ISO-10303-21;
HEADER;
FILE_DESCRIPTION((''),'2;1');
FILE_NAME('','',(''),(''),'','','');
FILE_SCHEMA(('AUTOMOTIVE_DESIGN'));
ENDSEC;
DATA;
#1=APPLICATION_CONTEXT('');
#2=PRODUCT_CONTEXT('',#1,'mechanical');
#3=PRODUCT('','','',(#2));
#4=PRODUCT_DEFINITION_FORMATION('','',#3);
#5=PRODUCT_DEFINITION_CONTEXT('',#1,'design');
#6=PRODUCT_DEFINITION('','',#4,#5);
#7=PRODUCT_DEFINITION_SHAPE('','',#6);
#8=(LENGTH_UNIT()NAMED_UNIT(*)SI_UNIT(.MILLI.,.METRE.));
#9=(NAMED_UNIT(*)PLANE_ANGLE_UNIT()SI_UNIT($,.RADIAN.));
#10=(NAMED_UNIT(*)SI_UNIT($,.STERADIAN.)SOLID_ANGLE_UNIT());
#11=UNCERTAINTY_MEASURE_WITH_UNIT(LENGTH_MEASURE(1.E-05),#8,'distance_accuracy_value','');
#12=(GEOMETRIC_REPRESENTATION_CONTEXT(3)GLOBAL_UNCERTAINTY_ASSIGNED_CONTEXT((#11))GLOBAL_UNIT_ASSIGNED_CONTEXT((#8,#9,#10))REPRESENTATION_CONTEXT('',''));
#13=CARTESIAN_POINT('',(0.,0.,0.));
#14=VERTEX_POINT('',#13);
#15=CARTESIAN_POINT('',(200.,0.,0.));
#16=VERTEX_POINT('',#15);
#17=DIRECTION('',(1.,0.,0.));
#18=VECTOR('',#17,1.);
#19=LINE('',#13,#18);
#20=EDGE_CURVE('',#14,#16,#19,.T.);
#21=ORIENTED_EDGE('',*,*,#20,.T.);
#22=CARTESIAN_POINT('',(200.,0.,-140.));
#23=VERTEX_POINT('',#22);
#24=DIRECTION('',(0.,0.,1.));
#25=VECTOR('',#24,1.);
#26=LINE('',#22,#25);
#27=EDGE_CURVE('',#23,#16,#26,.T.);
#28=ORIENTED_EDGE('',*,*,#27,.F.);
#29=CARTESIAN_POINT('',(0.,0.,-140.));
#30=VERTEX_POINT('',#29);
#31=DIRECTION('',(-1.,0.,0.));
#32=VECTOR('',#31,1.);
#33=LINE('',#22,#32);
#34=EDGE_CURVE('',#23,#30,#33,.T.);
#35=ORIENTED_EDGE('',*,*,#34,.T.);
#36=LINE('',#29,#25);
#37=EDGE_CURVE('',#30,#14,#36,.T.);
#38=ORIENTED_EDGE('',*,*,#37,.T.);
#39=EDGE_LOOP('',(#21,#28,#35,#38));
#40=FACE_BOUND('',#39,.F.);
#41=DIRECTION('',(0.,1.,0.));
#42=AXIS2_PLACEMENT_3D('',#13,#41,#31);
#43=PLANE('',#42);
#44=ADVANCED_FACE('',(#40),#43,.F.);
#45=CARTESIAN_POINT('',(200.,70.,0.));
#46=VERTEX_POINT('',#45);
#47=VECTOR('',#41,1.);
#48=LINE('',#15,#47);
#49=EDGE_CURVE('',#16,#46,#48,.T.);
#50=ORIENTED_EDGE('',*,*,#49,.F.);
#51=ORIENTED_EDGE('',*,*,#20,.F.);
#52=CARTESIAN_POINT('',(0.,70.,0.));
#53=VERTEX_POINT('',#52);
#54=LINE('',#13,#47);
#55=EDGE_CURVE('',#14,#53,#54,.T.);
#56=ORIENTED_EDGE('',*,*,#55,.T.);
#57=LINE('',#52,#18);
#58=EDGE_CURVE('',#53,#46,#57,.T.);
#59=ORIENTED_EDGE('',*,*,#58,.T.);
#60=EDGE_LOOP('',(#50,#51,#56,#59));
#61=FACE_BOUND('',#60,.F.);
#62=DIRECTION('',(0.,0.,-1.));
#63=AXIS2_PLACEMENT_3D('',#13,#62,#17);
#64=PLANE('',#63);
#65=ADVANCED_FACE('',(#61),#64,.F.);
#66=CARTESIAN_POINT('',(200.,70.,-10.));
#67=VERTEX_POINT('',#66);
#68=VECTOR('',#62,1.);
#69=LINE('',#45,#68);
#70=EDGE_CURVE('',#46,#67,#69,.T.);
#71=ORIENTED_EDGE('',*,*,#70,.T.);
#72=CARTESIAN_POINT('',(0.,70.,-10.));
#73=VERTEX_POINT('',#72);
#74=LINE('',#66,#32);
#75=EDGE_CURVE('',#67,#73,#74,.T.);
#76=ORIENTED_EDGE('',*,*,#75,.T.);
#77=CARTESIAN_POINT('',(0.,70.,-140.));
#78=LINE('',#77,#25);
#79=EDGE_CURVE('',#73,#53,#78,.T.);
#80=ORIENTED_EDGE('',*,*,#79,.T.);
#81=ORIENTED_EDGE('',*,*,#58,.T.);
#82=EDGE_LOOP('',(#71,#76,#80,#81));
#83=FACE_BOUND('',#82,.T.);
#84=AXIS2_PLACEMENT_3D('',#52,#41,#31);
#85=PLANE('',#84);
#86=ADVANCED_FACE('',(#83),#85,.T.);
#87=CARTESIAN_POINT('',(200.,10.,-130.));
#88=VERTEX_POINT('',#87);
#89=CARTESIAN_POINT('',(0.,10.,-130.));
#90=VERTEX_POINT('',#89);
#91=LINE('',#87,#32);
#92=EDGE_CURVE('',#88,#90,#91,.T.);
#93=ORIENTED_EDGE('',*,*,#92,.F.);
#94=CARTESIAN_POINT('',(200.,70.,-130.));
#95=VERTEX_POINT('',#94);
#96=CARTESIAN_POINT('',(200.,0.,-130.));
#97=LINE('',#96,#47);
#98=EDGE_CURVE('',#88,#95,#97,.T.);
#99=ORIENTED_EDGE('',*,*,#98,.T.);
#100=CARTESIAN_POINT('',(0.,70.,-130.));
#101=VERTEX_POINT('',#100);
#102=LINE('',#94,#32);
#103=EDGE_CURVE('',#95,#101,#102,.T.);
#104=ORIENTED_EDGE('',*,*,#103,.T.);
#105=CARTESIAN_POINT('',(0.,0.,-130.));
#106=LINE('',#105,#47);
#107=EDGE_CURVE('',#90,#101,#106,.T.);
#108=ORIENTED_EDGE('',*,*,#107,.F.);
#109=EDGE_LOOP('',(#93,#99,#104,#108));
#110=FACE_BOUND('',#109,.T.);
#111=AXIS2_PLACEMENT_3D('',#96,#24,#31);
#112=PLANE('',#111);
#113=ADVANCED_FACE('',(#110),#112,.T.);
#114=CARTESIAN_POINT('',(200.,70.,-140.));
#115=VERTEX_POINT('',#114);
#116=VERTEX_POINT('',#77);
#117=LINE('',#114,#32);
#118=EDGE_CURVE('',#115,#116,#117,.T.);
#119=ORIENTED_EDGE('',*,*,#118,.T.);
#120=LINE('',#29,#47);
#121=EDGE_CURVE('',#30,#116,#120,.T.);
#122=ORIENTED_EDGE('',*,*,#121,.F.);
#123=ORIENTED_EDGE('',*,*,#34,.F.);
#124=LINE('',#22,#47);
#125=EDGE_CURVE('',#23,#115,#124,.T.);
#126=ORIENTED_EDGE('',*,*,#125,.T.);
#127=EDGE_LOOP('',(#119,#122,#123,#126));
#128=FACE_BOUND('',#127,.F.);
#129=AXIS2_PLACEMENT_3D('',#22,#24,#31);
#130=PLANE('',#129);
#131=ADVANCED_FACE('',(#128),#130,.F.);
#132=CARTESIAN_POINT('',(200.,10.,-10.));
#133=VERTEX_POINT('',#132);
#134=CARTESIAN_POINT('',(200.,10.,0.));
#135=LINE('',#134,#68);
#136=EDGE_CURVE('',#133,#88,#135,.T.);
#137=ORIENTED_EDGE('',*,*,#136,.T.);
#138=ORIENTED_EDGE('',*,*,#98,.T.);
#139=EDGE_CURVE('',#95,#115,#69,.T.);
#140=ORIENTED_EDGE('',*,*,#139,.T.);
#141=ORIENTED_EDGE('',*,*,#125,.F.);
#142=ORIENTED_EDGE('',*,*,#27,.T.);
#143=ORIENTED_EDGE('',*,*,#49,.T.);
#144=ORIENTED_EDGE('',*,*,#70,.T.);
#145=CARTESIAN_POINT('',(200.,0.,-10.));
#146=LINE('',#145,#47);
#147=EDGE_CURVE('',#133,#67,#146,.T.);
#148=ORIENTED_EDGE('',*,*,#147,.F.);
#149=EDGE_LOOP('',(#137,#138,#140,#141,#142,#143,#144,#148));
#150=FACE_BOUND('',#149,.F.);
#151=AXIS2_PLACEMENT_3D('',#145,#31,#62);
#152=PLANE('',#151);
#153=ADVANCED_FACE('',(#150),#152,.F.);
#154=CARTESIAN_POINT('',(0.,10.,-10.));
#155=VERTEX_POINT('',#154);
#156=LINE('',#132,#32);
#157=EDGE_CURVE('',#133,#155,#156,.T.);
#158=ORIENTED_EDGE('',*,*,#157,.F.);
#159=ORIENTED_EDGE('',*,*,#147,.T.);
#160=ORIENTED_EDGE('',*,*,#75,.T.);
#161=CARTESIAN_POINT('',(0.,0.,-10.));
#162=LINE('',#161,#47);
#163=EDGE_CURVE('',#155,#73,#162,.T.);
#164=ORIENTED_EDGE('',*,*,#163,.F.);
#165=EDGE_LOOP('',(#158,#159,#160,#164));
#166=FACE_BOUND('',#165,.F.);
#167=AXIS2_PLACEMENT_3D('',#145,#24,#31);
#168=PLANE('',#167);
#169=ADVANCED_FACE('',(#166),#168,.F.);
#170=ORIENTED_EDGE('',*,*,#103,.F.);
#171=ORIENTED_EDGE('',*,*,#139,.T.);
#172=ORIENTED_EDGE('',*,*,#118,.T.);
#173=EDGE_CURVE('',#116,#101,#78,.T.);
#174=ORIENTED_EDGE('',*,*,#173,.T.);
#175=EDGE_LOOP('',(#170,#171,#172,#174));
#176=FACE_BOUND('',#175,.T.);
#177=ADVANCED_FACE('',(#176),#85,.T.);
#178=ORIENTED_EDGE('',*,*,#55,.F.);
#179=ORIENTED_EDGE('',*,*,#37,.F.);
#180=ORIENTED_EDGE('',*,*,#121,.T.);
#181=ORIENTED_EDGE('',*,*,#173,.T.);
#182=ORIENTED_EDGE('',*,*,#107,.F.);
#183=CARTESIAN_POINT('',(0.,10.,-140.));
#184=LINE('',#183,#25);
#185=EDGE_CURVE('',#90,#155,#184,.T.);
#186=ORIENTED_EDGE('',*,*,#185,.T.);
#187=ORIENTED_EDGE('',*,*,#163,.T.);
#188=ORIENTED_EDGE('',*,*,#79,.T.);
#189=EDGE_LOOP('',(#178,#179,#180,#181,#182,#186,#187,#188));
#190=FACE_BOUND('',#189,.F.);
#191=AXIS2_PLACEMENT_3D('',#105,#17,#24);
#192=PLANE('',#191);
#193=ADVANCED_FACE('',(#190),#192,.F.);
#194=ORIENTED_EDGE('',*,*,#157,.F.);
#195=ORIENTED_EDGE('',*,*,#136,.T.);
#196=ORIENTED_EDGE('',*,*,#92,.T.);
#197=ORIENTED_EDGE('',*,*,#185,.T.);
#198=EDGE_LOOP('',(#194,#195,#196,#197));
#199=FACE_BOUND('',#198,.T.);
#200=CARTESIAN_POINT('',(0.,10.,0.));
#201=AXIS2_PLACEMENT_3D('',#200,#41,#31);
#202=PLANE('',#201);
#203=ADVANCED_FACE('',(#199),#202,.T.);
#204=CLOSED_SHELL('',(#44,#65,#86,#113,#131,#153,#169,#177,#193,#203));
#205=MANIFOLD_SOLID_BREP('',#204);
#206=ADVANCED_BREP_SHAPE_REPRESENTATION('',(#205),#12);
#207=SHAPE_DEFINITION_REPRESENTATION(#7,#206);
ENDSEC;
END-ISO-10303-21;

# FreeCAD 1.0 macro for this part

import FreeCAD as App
import Part
import Sketcher

V = App.Vector
Q = App.Units.Quantity


def add_polygon(sketch, points):
    """Adds a closed chain of lines whose ends are joined by coincident constraints."""
    first, n = sketch.GeometryCount, len(points)
    for a, b in zip(points, points[1:] + points[:1]):
        sketch.addGeometry(Part.LineSegment(App.Vector(*a, 0), App.Vector(*b, 0)), False)
    for i in range(n):
        sketch.addConstraint(Sketcher.Constraint("Coincident", first + i, 2, first + (i + 1) % n, 1))

doc = App.newDocument("Part")
body = doc.addObject("PartDesign::Body", "Body")

sketch1 = doc.addObject("Sketcher::SketchObject", "Sketch")
body.addObject(sketch1)
sketch1.AttachmentSupport = (doc.XZ_Plane, [""])
sketch1.MapMode = "FlatFace"
add_polygon(sketch1, [(0, -130), (0, -10), (200, -10), (200, -130)])
sketch1.addConstraint([
    Sketcher.Constraint("Vertical", 0),
    Sketcher.Constraint("Horizontal", 1),
    Sketcher.Constraint("Vertical", 2),
    Sketcher.Constraint("Horizontal", 3),
    Sketcher.Constraint("PointOnObject", 0, 2, -2),
    Sketcher.Constraint("DistanceX", 1, 1, 1, 2, Q("200 mm")),
    Sketcher.Constraint("DistanceY", 0, 2, -1, 1, Q("10 mm")),
    Sketcher.Constraint("DistanceY", 0, 1, 0, 2, Q("120 mm")),
])
pad1 = doc.addObject("PartDesign::Pad", "Pad")
body.addObject(pad1)
pad1.Profile = sketch1
pad1.Length = 10
pad1.Reversed = True

sketch2 = doc.addObject("Sketcher::SketchObject", "Sketch001")
body.addObject(sketch2)
sketch2.AttachmentSupport = (doc.XZ_Plane, [""])
sketch2.MapMode = "FlatFace"
add_polygon(sketch2, [(0, -10), (0, 0), (200, 0), (200, -10)])
add_polygon(sketch2, [(0, -140), (0, -130), (200, -130), (200, -140)])
sketch2.addConstraint([
    Sketcher.Constraint("Vertical", 0),
    Sketcher.Constraint("Horizontal", 1),
    Sketcher.Constraint("Vertical", 2),
    Sketcher.Constraint("Horizontal", 3),
    Sketcher.Constraint("Vertical", 4),
    Sketcher.Constraint("Horizontal", 5),
    Sketcher.Constraint("Vertical", 6),
    Sketcher.Constraint("Horizontal", 7),
    Sketcher.Constraint("Coincident", 0, 2, -1, 1),
    Sketcher.Constraint("PointOnObject", 4, 2, -2),
    Sketcher.Constraint("Vertical", 2, 2, 5, 2),
    Sketcher.Constraint("Equal", 2, 4),
    Sketcher.Constraint("DistanceX", 1, 1, 1, 2, Q("200 mm")),
    Sketcher.Constraint("DistanceY", 0, 1, 0, 2, Q("10 mm")),
    Sketcher.Constraint("DistanceY", 6, 2, -1, 1, Q("140 mm")),
])
pad2 = doc.addObject("PartDesign::Pad", "Pad001")
body.addObject(pad2)
pad2.Profile = sketch2
pad2.Length = 70
pad2.Reversed = True

doc.recompute()
